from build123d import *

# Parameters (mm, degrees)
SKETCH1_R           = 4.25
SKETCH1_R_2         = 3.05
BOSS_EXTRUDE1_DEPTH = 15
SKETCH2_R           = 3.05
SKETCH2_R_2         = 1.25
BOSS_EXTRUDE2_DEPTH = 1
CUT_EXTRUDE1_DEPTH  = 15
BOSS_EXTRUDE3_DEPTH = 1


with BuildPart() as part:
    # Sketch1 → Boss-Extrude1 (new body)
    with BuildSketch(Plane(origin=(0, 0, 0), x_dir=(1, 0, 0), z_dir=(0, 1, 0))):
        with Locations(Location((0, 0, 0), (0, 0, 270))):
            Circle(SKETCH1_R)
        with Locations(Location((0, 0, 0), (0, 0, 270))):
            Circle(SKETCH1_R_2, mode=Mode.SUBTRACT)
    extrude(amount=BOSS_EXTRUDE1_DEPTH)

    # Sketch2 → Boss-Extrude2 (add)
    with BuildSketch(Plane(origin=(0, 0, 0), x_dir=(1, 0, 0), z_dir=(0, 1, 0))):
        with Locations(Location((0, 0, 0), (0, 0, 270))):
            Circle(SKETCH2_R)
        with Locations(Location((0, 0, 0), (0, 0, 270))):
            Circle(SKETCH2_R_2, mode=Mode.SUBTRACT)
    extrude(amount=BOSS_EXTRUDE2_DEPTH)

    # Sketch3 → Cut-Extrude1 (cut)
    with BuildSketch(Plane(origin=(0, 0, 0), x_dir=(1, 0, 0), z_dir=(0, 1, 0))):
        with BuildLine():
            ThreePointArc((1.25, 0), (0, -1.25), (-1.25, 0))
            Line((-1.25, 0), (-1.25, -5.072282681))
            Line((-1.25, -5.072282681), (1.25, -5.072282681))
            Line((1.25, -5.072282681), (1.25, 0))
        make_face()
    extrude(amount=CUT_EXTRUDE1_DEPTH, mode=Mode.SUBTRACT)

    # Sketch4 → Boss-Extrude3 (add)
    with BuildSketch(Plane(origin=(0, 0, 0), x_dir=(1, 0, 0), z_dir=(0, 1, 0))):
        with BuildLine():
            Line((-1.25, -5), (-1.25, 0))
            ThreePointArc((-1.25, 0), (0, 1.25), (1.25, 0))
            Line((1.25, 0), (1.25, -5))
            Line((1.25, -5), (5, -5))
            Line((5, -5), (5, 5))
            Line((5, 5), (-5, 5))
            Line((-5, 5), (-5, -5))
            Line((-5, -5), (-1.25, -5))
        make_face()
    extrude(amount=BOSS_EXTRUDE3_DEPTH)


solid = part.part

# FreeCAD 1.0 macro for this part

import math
import FreeCAD as App
import Part
import Sketcher

doc = App.newDocument("Part")
body = doc.addObject("PartDesign::Body", "Body")

# Sketch on XZ plane
sketch1 = body.newObject("Sketcher::SketchObject", "Sketch")
sketch1.AttachmentSupport = (doc.getObject("XZ_Plane"), [""])
sketch1.MapMode = "FlatFace"
sketch1.addGeometry([
    Part.Circle(App.Vector(0, 0, 0), App.Vector(0, 0, 1), 4.2),
    Part.Circle(App.Vector(0, 0, 0), App.Vector(0, 0, 1), 3),
], False)
sketch1.addConstraint([
    Sketcher.Constraint("Coincident", 0, 3, -1, 1),
    Sketcher.Constraint("Coincident", 1, 3, -1, 1),
    Sketcher.Constraint("Diameter", 0, 8.5),
    Sketcher.Constraint("Diameter", 1, 6.1),
])
pad1 = body.newObject("PartDesign::Pad", "Pad")
pad1.Profile = sketch1
pad1.Length = 15
pad1.Reversed = True

# Sketch on XZ plane
sketch2 = body.newObject("Sketcher::SketchObject", "Sketch001")
sketch2.AttachmentSupport = (doc.getObject("XZ_Plane"), [""])
sketch2.MapMode = "FlatFace"
sketch2.addGeometry([
    Part.Circle(App.Vector(0, 0, 0), App.Vector(0, 0, 1), 3),
    Part.Circle(App.Vector(0, 0, 0), App.Vector(0, 0, 1), 1.2),
], False)
sketch2.addConstraint([
    Sketcher.Constraint("Coincident", 0, 3, -1, 1),
    Sketcher.Constraint("Coincident", 1, 3, -1, 1),
    Sketcher.Constraint("Diameter", 0, 6.1),
    Sketcher.Constraint("Diameter", 1, 2.5),
])
pad2 = body.newObject("PartDesign::Pad", "Pad001")
pad2.Profile = sketch2
pad2.Length = 1
pad2.Reversed = True

# Sketch on XZ plane
sketch3 = body.newObject("Sketcher::SketchObject", "Sketch002")
sketch3.AttachmentSupport = (doc.getObject("XZ_Plane"), [""])
sketch3.MapMode = "FlatFace"
sketch3.addGeometry([
    Part.ArcOfCircle(Part.Circle(App.Vector(0, 0, 0), App.Vector(0, 0, 1), 1.2), math.radians(0), math.radians(180)),
    Part.LineSegment(App.Vector(-1.2, 0, 0), App.Vector(-1.2, 5.1, 0)),
    Part.LineSegment(App.Vector(-1.2, 5.1, 0), App.Vector(1.2, 5.1, 0)),
    Part.LineSegment(App.Vector(1.2, 5.1, 0), App.Vector(1.2, 0, 0)),
], False)
sketch3.addConstraint([
    Sketcher.Constraint("Tangent", 0, 2, 1, 1),
    Sketcher.Constraint("Coincident", 1, 2, 2, 1),
    Sketcher.Constraint("Coincident", 2, 2, 3, 1),
    Sketcher.Constraint("Tangent", 3, 2, 0, 1),
    Sketcher.Constraint("Vertical", 1),
    Sketcher.Constraint("Horizontal", 2),
    Sketcher.Constraint("Vertical", 3),
    Sketcher.Constraint("Coincident", 0, 3, -1, 1),
    Sketcher.Constraint("Radius", 0, 1.25),
    Sketcher.Constraint("DistanceY", 1, 1, 1, 2, 5.072283),
])
pocket1 = body.newObject("PartDesign::Pocket", "Pocket")
pocket1.Profile = sketch3
pocket1.Length = 15

# Sketch on XZ plane
sketch4 = body.newObject("Sketcher::SketchObject", "Sketch003")
sketch4.AttachmentSupport = (doc.getObject("XZ_Plane"), [""])
sketch4.MapMode = "FlatFace"
sketch4.addGeometry([
    Part.LineSegment(App.Vector(-1.2, 5, 0), App.Vector(-1.2, 0, 0)),  # 0
    Part.ArcOfCircle(Part.Circle(App.Vector(0, 0, 0), App.Vector(0, 0, 1), 1.2), math.radians(180), math.radians(360)),  # 1
    Part.LineSegment(App.Vector(1.2, 0, 0), App.Vector(1.2, 5, 0)),  # 2
    Part.LineSegment(App.Vector(1.2, 5, 0), App.Vector(5, 5, 0)),  # 3
    Part.LineSegment(App.Vector(5, 5, 0), App.Vector(5, -5, 0)),  # 4
    Part.LineSegment(App.Vector(5, -5, 0), App.Vector(-5, -5, 0)),  # 5
    Part.LineSegment(App.Vector(-5, -5, 0), App.Vector(-5, 5, 0)),  # 6
    Part.LineSegment(App.Vector(-5, 5, 0), App.Vector(-1.2, 5, 0)),  # 7
], False)
sketch4.addConstraint([
    Sketcher.Constraint("Tangent", 0, 2, 1, 1),
    Sketcher.Constraint("Tangent", 1, 2, 2, 1),
    Sketcher.Constraint("Coincident", 2, 2, 3, 1),
    Sketcher.Constraint("Coincident", 3, 2, 4, 1),
    Sketcher.Constraint("Coincident", 4, 2, 5, 1),
    Sketcher.Constraint("Coincident", 5, 2, 6, 1),
    Sketcher.Constraint("Coincident", 6, 2, 7, 1),
    Sketcher.Constraint("Coincident", 7, 2, 0, 1),
    Sketcher.Constraint("Vertical", 0),
    Sketcher.Constraint("Vertical", 2),
    Sketcher.Constraint("Horizontal", 3),
    Sketcher.Constraint("Vertical", 4),
    Sketcher.Constraint("Horizontal", 5),
    Sketcher.Constraint("Vertical", 6),
    Sketcher.Constraint("Horizontal", 7),
    Sketcher.Constraint("Coincident", 1, 3, -1, 1),
    Sketcher.Constraint("Symmetric", 3, 2, 5, 2, -1, 1),
    Sketcher.Constraint("Horizontal", 3, 2, 6, 2),
    Sketcher.Constraint("Equal", 5, 4),
    Sketcher.Constraint("DistanceX", 5, 2, 5, 1, 10.0),
    Sketcher.Constraint("Radius", 1, 1.25),
])
pad3 = body.newObject("PartDesign::Pad", "Pad002")
pad3.Profile = sketch4
pad3.Length = 1
pad3.Reversed = True

doc.recompute()
